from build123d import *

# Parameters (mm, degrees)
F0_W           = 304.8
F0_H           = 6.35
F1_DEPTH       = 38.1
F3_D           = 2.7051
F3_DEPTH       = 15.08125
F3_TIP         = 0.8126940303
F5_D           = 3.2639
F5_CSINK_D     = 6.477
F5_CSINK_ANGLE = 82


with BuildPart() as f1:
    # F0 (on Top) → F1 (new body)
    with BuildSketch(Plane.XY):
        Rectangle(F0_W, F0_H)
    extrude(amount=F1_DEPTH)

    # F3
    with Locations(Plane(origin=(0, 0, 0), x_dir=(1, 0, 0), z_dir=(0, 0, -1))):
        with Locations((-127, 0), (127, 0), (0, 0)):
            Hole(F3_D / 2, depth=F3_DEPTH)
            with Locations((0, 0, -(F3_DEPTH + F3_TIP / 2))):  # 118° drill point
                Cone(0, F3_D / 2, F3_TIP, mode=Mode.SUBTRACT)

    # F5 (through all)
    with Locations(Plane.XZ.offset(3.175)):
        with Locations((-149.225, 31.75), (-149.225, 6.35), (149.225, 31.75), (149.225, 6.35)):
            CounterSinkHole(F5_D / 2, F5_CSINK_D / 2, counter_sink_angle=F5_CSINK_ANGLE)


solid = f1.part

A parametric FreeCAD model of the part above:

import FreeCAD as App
import Part
import Sketcher
Q = App.Units.Quantity

doc = App.newDocument("Part")
body = doc.addObject("PartDesign::Body", "Body")

sketch1 = doc.addObject("Sketcher::SketchObject", "Sketch")
body.addObject(sketch1)
sketch1.AttachmentSupport = (doc.XY_Plane, [""])
sketch1.MapMode = "FlatFace"
sketch1.addGeometry([
    Part.LineSegment(App.Vector(-152, 3, 0), App.Vector(-152, -3, 0)),
    Part.LineSegment(App.Vector(-152, -3, 0), App.Vector(152, -3, 0)),
    Part.LineSegment(App.Vector(152, -3, 0), App.Vector(152, 3, 0)),
    Part.LineSegment(App.Vector(152, 3, 0), App.Vector(-152, 3, 0)),
], False)
sketch1.addConstraint([
    Sketcher.Constraint("Coincident", 0, 2, 1, 1),
    Sketcher.Constraint("Coincident", 1, 2, 2, 1),
    Sketcher.Constraint("Coincident", 2, 2, 3, 1),
    Sketcher.Constraint("Coincident", 3, 2, 0, 1),
    Sketcher.Constraint("Vertical", 0),
    Sketcher.Constraint("Horizontal", 1),
    Sketcher.Constraint("Vertical", 2),
    Sketcher.Constraint("Horizontal", 3),
    Sketcher.Constraint("Symmetric", 0, 2, 2, 2, -1, 1),
    Sketcher.Constraint("DistanceX", 1, 1, 1, 2, Q("12 in")),
    Sketcher.Constraint("DistanceY", 0, 2, 0, 1, Q("0.25 in")),
])
pad1 = doc.addObject("PartDesign::Pad", "Pad")
body.addObject(pad1)
pad1.Profile = sketch1
pad1.Length = Q("1.5 in")

sketch2 = doc.addObject("Sketcher::SketchObject", "Sketch001")
body.addObject(sketch2)
sketch2.AttachmentSupport = (doc.XY_Plane, [""])
sketch2.MapMode = "FlatFace"
sketch2.addGeometry([
    Part.Circle(App.Vector(-127, 0, 0), App.Vector(0, 0, 1), 1.4),
    Part.Circle(App.Vector(127, 0, 0), App.Vector(0, 0, 1), 1.4),
    Part.Circle(App.Vector(0, 0, 0), App.Vector(0, 0, 1), 1.4),
], False)
sketch2.addConstraint([
    Sketcher.Constraint("Coincident", 2, 3, -1, 1),
    Sketcher.Constraint("Equal", 0, 1),
    Sketcher.Constraint("Equal", 1, 2),
    Sketcher.Constraint("Symmetric", 0, 3, 1, 3, -1, 1),
    Sketcher.Constraint("PointOnObject", 0, 3, -1),
    Sketcher.Constraint("DistanceX", 0, 3, -1, 1, Q("5 in")),
    Sketcher.Constraint("Diameter", 0, Q("0.1065 in")),
])
doc.recompute()
hole = doc.addObject("PartDesign::Hole", "Hole")
body.addObject(hole)
hole.Profile = sketch2
hole.ThreadType = "None"
hole.Diameter = Q("0.1065 in")
hole.DepthType = "Dimension"
hole.Depth = Q("0.59375 in")
hole.DrillPoint = "Angled"
hole.DrillPointAngle = 118
hole.Reversed = True

sketch3 = doc.addObject("Sketcher::SketchObject", "Sketch002")
body.addObject(sketch3)
sketch3.AttachmentSupport = (doc.XZ_Plane, [""])
sketch3.MapMode = "FlatFace"
sketch3.AttachmentOffset = App.Placement(App.Vector(0, 0, 0.125 * 25.4), App.Rotation())
sketch3.addGeometry([
    Part.Circle(App.Vector(-149.2, 31.8, 0), App.Vector(0, 0, 1), 1.6),
    Part.Circle(App.Vector(-149.2, 6.3, 0), App.Vector(0, 0, 1), 1.6),
    Part.Circle(App.Vector(149.2, 31.8, 0), App.Vector(0, 0, 1), 1.6),
    Part.Circle(App.Vector(149.2, 6.3, 0), App.Vector(0, 0, 1), 1.6),
], False)
sketch3.addConstraint([
    Sketcher.Constraint("Equal", 0, 1),
    Sketcher.Constraint("Equal", 1, 2),
    Sketcher.Constraint("Equal", 2, 3),
    Sketcher.Constraint("Symmetric", 0, 3, 2, 3, -2),
    Sketcher.Constraint("Symmetric", 1, 3, 3, 3, -2),
    Sketcher.Constraint("Vertical", 0, 3, 1, 3),
    Sketcher.Constraint("DistanceY", 1, 3, 0, 3, Q("1 in")),
    Sketcher.Constraint("Diameter", 0, Q("0.1285 in")),
    Sketcher.Constraint("DistanceY", -1, 1, 0, 3, Q("1.25 in")),
    Sketcher.Constraint("DistanceX", 0, 3, 2, 3, Q("11.75 in")),
])
doc.recompute()
hole2 = doc.addObject("PartDesign::Hole", "Hole001")
body.addObject(hole2)
hole2.Profile = sketch3
hole2.ThreadType = "None"
hole2.Diameter = Q("0.1285 in")
hole2.DepthType = "ThroughAll"
hole2.HoleCutType = "Countersink"
hole2.HoleCutDiameter = Q("0.255 in")
hole2.HoleCutCountersinkAngle = 82

doc.recompute()
